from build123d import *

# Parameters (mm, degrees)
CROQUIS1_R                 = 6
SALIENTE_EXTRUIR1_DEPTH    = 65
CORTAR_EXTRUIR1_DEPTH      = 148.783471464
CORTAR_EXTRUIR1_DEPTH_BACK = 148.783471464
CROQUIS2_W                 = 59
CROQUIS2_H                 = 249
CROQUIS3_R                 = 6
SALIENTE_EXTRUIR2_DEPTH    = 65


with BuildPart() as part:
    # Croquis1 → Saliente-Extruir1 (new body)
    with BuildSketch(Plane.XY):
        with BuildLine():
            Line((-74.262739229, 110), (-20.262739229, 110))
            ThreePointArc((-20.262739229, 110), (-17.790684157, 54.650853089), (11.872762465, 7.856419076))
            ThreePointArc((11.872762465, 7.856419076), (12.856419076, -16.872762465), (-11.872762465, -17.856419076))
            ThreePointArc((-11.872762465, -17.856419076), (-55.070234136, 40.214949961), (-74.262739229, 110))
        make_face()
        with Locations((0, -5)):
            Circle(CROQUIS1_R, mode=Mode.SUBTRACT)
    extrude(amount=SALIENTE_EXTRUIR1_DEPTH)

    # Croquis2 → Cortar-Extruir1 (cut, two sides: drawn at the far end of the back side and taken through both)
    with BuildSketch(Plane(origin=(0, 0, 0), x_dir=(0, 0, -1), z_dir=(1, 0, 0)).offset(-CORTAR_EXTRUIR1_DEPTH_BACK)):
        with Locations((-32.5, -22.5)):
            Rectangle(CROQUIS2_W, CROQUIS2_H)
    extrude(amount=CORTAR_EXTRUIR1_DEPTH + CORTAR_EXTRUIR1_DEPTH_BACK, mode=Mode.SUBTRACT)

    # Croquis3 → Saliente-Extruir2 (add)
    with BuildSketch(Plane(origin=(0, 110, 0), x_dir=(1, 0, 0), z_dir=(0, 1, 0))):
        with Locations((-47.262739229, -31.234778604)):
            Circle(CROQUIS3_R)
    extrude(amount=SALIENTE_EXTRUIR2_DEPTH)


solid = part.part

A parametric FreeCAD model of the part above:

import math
import FreeCAD as App
import Part
import Sketcher
Q = App.Units.Quantity


def add_polygon(sketch, points):
    """Adds a closed chain of lines whose ends are joined by coincident constraints."""
    first, n = sketch.GeometryCount, len(points)
    for a, b in zip(points, points[1:] + points[:1]):
        sketch.addGeometry(Part.LineSegment(App.Vector(*a, 0), App.Vector(*b, 0)), False)
    for i in range(n):
        sketch.addConstraint(Sketcher.Constraint("Coincident", first + i, 2, first + (i + 1) % n, 1))

doc = App.newDocument("Part")
body = doc.addObject("PartDesign::Body", "Body")

# Sketch on XY plane
sketch1 = body.newObject("Sketcher::SketchObject", "Sketch")
sketch1.AttachmentSupport = (doc.getObject("XY_Plane"), [""])
sketch1.MapMode = "FlatFace"
sketch1.addGeometry(Part.LineSegment(App.Vector(-20, 110, 0), App.Vector(-74, 110, 0)), False)
sketch1.addGeometry(Part.ArcOfCircle(Part.Circle(App.Vector(121, 126, 0), App.Vector(0, 0, 1), 196), math.radians(-175), math.radians(-133)), False)
sketch1.addGeometry(Part.ArcOfCircle(Part.Circle(App.Vector(0, -5, 0), App.Vector(0, 0, 1), 18), math.radians(-133), math.radians(47)), False)
sketch1.addGeometry(Part.ArcOfCircle(Part.Circle(App.Vector(85, 87, 0), App.Vector(0, 0, 1), 108), math.radians(168), math.radians(227)), False)
sketch1.addGeometry(Part.Circle(App.Vector(0, -5, 0), App.Vector(0, 0, 1), 6), False)
sketch1.addConstraint(Sketcher.Constraint("Coincident", 0, 2, 1, 1))
sketch1.addConstraint(Sketcher.Constraint("Tangent", 1, 2, 2, 1))
sketch1.addConstraint(Sketcher.Constraint("Tangent", 2, 2, 3, 2))
sketch1.addConstraint(Sketcher.Constraint("Coincident", 3, 1, 0, 1))
sketch1.addConstraint(Sketcher.Constraint("Horizontal", 0))
sketch1.addConstraint(Sketcher.Constraint("Coincident", 4, 3, 2, 3))
sketch1.addConstraint(Sketcher.Constraint("PointOnObject", 2, 3, -2))
sketch1.addConstraint(Sketcher.Constraint("Diameter", 4, Q("12 mm")))
sketch1.addConstraint(Sketcher.Constraint("Radius", 2, Q("17.5 mm")))
sketch1.addConstraint(Sketcher.Constraint("DistanceX", 0, 2, 0, 1, Q("54 mm")))
sketch1.addConstraint(Sketcher.Constraint("DistanceY", 2, 3, -1, 1, Q("5 mm")))
sketch1.addConstraint(Sketcher.Constraint("DistanceY", -1, 1, 0, 2, Q("110 mm")))
sketch1.addConstraint(Sketcher.Constraint("Radius", 1, Q("196.114376 mm")))
sketch1.addConstraint(Sketcher.Constraint("Radius", 3, Q("107.686427 mm")))
sketch1.addConstraint(Sketcher.Constraint("DistanceY", -1, 1, 1, 3, Q("126.219501 mm")))
pad1 = body.newObject("PartDesign::Pad", "Pad")
pad1.Profile = sketch1
pad1.Length = 65

# Sketch on YZ plane
sketch2 = body.newObject("Sketcher::SketchObject", "Sketch001")
sketch2.AttachmentSupport = (doc.getObject("YZ_Plane"), [""])
sketch2.MapMode = "FlatFace"
add_polygon(sketch2, [(102, 62), (-147, 62), (-147, 3), (102, 3)])  # lines 0-3
sketch2.addConstraint(Sketcher.Constraint("Horizontal", 0))
sketch2.addConstraint(Sketcher.Constraint("Vertical", 1))
sketch2.addConstraint(Sketcher.Constraint("Horizontal", 2))
sketch2.addConstraint(Sketcher.Constraint("Vertical", 3))
sketch2.addConstraint(Sketcher.Constraint("DistanceX", 0, 2, 0, 1, Q("249 mm")))
sketch2.addConstraint(Sketcher.Constraint("DistanceY", 1, 2, 1, 1, Q("59 mm")))
sketch2.addConstraint(Sketcher.Constraint("DistanceX", 0, 2, -1, 1, Q("147 mm")))
sketch2.addConstraint(Sketcher.Constraint("DistanceY", -1, 1, 0, 2, Q("62 mm")))
pocket1 = body.newObject("PartDesign::Pocket", "Pocket")
pocket1.Profile = sketch2
pocket1.Type = "ThroughAll"
pocket1.Midplane = True

# Sketch on XZ plane
sketch3 = body.newObject("Sketcher::SketchObject", "Sketch002")
sketch3.AttachmentSupport = (doc.getObject("XZ_Plane"), [""])
sketch3.MapMode = "FlatFace"
sketch3.AttachmentOffset = App.Placement(App.Vector(0, 0, -110), App.Rotation())
sketch3.addGeometry(Part.Circle(App.Vector(-47, 31, 0), App.Vector(0, 0, 1), 6), False)
sketch3.addConstraint(Sketcher.Constraint("Diameter", 0, Q("12 mm")))
sketch3.addConstraint(Sketcher.Constraint("DistanceX", 0, 3, -1, 1, Q("47.262739 mm")))
sketch3.addConstraint(Sketcher.Constraint("DistanceY", -1, 1, 0, 3, Q("31.234779 mm")))
pad2 = body.newObject("PartDesign::Pad", "Pad001")
pad2.Profile = sketch3
pad2.Length = 65
pad2.Reversed = True

doc.recompute()
